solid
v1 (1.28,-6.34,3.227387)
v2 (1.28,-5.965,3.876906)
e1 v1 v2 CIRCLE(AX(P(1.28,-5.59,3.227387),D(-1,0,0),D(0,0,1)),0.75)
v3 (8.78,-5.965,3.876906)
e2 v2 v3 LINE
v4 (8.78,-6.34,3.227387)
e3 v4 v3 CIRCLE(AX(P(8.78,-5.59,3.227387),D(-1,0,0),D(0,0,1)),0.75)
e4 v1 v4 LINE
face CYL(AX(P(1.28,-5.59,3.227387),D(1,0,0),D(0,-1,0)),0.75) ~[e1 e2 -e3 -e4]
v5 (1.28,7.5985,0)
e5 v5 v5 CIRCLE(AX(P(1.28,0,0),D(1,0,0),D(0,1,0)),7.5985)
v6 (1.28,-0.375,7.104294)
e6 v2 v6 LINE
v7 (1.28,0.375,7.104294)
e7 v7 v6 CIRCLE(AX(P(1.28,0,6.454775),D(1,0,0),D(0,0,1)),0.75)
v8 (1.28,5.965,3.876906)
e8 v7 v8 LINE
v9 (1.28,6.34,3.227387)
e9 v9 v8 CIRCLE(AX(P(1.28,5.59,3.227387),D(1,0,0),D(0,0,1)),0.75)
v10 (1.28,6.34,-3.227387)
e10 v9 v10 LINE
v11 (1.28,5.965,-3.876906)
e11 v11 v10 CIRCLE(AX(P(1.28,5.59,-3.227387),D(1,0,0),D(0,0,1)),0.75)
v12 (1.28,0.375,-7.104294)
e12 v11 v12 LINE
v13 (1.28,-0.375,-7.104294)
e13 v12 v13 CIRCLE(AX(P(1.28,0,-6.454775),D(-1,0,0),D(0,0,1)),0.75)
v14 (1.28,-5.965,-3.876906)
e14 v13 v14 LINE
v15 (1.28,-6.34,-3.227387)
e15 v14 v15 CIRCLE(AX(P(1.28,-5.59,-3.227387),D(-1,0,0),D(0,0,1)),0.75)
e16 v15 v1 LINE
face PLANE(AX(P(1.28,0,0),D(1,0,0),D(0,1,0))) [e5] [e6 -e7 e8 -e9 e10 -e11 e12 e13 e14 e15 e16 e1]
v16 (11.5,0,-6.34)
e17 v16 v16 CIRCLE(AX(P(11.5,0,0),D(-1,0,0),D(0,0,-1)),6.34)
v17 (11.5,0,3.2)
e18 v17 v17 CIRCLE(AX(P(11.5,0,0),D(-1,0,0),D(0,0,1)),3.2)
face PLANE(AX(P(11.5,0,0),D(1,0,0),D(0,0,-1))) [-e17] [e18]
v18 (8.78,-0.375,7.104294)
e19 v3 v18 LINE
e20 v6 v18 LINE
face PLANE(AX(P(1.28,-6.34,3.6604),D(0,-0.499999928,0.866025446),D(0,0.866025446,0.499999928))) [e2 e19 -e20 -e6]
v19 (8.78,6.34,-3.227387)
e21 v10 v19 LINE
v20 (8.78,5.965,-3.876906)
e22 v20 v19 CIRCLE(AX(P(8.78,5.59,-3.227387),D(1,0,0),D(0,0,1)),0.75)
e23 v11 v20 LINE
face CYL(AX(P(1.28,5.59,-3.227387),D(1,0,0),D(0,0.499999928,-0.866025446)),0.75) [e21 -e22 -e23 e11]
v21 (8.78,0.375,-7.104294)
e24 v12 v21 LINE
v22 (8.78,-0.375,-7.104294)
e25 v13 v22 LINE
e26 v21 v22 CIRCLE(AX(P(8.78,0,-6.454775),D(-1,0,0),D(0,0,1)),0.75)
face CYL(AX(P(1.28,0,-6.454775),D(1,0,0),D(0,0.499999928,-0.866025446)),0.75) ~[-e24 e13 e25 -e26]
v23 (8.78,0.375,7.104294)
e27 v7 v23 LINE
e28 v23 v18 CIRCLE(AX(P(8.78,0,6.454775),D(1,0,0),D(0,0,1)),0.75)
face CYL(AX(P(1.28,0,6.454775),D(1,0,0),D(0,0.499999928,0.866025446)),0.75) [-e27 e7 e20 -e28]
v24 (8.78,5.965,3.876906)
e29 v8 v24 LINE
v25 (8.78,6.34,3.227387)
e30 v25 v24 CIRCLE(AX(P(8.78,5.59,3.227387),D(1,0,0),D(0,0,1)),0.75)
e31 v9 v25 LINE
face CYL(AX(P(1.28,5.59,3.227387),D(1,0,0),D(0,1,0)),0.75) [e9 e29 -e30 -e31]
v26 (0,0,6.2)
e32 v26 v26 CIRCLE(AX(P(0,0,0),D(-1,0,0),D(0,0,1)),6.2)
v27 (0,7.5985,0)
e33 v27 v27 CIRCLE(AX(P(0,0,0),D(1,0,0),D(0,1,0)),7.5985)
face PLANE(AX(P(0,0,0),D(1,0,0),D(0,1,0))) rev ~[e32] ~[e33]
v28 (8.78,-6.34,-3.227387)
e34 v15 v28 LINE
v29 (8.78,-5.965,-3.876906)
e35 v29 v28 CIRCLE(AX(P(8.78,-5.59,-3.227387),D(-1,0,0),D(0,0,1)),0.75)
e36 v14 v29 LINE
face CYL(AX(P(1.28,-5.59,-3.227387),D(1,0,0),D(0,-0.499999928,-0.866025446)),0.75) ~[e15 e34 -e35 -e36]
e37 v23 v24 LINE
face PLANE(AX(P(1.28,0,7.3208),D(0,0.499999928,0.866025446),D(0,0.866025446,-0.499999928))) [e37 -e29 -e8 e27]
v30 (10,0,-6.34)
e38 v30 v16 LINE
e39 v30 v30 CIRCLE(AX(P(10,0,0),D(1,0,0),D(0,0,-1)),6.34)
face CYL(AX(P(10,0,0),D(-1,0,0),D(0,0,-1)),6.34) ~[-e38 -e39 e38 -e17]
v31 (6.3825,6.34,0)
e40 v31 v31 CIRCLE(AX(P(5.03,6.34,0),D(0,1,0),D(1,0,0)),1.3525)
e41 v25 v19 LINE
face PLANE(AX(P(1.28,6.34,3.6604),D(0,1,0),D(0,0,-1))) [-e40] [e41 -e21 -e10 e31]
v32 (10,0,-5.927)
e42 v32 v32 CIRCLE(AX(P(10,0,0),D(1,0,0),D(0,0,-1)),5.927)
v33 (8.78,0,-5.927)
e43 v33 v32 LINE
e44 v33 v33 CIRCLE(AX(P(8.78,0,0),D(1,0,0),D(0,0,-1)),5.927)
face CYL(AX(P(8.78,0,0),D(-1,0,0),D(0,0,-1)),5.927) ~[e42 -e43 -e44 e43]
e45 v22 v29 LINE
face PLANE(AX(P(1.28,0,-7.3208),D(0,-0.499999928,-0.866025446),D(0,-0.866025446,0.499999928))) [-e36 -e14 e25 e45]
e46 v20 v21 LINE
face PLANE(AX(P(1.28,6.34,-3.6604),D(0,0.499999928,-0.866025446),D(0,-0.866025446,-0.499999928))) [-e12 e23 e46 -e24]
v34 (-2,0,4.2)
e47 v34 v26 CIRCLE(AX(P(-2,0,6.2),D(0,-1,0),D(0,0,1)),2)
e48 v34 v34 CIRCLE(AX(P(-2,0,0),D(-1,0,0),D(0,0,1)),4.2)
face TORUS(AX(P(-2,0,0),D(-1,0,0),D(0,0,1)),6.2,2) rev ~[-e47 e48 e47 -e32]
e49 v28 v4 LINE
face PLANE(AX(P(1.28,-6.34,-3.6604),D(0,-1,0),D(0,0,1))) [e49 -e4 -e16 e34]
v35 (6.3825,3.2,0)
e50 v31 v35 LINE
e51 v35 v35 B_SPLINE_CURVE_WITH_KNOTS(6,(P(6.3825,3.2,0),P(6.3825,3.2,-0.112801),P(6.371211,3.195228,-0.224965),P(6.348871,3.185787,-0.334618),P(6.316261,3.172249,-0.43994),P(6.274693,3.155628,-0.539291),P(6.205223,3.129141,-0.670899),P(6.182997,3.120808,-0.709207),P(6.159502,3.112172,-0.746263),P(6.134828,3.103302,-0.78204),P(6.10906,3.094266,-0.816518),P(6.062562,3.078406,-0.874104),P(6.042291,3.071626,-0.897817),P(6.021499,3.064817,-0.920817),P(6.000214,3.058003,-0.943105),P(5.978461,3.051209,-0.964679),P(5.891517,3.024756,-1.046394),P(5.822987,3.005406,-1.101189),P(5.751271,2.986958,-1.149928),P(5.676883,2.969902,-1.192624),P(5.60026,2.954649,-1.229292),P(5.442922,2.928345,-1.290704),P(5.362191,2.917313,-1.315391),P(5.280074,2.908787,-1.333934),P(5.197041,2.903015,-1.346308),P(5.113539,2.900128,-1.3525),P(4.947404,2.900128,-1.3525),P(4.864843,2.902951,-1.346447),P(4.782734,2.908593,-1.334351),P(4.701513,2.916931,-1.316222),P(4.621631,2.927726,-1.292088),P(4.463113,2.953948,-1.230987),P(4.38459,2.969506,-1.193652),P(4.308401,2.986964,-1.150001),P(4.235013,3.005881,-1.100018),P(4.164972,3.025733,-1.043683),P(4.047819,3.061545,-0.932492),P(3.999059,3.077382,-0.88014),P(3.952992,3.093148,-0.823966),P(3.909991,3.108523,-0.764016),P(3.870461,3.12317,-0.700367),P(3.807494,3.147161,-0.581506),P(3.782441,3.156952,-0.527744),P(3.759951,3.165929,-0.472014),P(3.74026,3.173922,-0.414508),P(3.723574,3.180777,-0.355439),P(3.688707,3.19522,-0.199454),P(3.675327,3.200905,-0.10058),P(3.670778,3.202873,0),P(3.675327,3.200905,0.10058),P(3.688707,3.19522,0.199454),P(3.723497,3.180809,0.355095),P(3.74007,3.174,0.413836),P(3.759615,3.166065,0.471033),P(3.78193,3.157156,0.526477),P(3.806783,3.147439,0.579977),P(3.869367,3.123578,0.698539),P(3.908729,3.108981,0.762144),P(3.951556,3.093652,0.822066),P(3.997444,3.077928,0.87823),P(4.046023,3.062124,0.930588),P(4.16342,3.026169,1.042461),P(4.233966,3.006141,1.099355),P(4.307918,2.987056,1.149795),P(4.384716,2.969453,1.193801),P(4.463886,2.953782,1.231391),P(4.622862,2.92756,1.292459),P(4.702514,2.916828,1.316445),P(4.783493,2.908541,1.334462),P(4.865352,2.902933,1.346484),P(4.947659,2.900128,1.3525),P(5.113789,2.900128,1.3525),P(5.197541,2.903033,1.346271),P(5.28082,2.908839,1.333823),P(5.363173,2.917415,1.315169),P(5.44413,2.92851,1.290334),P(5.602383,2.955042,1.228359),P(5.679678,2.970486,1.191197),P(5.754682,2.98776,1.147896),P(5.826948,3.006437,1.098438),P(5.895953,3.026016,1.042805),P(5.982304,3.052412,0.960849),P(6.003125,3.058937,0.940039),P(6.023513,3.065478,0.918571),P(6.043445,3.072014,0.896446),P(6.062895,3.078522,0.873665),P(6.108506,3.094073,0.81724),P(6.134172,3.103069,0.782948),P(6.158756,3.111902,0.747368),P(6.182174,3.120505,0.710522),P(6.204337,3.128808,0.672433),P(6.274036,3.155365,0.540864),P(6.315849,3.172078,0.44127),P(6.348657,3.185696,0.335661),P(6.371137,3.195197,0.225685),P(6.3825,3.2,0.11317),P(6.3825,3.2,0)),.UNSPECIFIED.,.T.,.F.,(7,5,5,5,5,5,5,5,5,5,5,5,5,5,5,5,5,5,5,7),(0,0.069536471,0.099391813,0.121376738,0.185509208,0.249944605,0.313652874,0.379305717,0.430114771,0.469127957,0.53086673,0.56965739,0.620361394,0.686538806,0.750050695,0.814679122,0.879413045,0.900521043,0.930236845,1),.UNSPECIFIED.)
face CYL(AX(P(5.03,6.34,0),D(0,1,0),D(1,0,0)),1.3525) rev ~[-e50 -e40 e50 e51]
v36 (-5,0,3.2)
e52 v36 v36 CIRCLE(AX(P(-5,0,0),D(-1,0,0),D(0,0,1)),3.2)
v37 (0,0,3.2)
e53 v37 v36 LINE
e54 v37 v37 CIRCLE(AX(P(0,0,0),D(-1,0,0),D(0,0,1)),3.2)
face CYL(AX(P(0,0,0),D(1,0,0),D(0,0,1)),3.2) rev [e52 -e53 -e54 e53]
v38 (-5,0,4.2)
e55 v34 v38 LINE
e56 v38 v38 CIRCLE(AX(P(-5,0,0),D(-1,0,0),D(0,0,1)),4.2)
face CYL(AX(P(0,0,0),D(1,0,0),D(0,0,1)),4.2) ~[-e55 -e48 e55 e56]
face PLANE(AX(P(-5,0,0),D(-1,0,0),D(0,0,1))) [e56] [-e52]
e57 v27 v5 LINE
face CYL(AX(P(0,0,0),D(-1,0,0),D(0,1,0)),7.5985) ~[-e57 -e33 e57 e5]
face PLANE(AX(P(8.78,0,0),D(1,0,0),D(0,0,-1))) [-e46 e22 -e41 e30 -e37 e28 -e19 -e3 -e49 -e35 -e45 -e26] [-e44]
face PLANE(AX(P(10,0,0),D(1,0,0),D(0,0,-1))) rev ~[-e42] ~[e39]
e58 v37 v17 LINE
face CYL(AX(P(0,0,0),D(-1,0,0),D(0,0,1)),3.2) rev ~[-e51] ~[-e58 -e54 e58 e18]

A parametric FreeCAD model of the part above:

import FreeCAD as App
import Part
import Sketcher
Q = App.Units.Quantity


def edges_at(feature, points):
    """Names of the edges that pass closest to the given points."""
    edges = feature.Shape.Edges
    near = lambda p: min(range(len(edges)), key=lambda i: edges[i].distToShape(Part.Vertex(*p))[0])
    return sorted({f"Edge{near(p) + 1}" for p in points})


def add_polygon(sketch, points):
    """Adds a closed chain of lines whose ends are joined by coincident constraints."""
    first, n = sketch.GeometryCount, len(points)
    for a, b in zip(points, points[1:] + points[:1]):
        sketch.addGeometry(Part.LineSegment(App.Vector(*a, 0), App.Vector(*b, 0)), False)
    for i in range(n):
        sketch.addConstraint(Sketcher.Constraint("Coincident", first + i, 2, first + (i + 1) % n, 1))

doc = App.newDocument("Part")
params = doc.addObject("Spreadsheet::Sheet", "Params")
for row, (alias, value) in enumerate([
    ("pad1_length", "1.28 mm"),
    ("pad2_length", "7.5 mm"),
    ("pad3_length", "1.22 mm"),
    ("sketch4_diameter", "12.68 mm"),
    ("pad4_length", "1.5 mm"),
    ("fillet_radius", "0.75 mm"),
    ("fillet2_radius", "0.75 mm"),
    ("pocket1_length", "6.5 mm"),
    ("sketch6_diameter", "6.4 mm"),
    ("pocket2_length", "11.75 mm"),
    ("sketch7_diameter", "8.4 mm"),
    ("sketch7_diameter2", "6.4 mm"),
    ("pad5_length", "5 mm"),
    ("fillet3_radius", "2 mm"),
], start=1):
    params.set(f"A{row}", alias)
    params.set(f"B{row}", "=" + value)
    params.setAlias(f"B{row}", alias)

body = doc.addObject("PartDesign::Body", "Body")

sketch1 = body.newObject("Sketcher::SketchObject", "Sketch")
sketch1.AttachmentSupport = (doc.getObject("YZ_Plane"), [""])
sketch1.MapMode = "FlatFace"
sketch1.addGeometry(Part.Circle(App.Vector(0, 0, 0), App.Vector(0, 0, 1), 8), False)
sketch1.addConstraint([
    Sketcher.Constraint("Coincident", 0, 3, -1, 1),
    Sketcher.Constraint("Diameter", 0, 15.197),
])
pad1 = body.newObject("PartDesign::Pad", "Pad")
pad1.Profile = sketch1
pad1.setExpression("Length", "Params.pad1_length")

sketch2 = body.newObject("Sketcher::SketchObject", "Sketch001")
sketch2.AttachmentSupport = (doc.getObject("YZ_Plane"), [""])
sketch2.MapMode = "FlatFace"
sketch2.AttachmentOffset = App.Placement(App.Vector(0, 0, 1.28), App.Rotation())
add_polygon(sketch2, [(0, -7), (6, -4), (6, 4), (0, 7), (-6, 4), (-6, -4)])
sketch2.addConstraint([
    Sketcher.Constraint("Vertical", 1),
    Sketcher.Constraint("Vertical", 4),
    Sketcher.Constraint("Symmetric", 0, 2, 3, 2, -1, 1),
    Sketcher.Constraint("Symmetric", 2, 2, 5, 2, -1, 1),
    Sketcher.Constraint("PointOnObject", 2, 2, -2),
    Sketcher.Constraint("Parallel", 2, 5),
    Sketcher.Constraint("Horizontal", 1, 2, 3, 2),
    Sketcher.Constraint("Angle", 0, Q("30 deg")),
    Sketcher.Constraint("DistanceX", -1, 1, 0, 2, 6.34),
    Sketcher.Constraint("DistanceY", 1, 1, 1, 2, 7.3208),
])
pad2 = body.newObject("PartDesign::Pad", "Pad001")
pad2.Profile = sketch2
pad2.setExpression("Length", "Params.pad2_length")

sketch3 = body.newObject("Sketcher::SketchObject", "Sketch002")
sketch3.AttachmentSupport = (doc.getObject("YZ_Plane"), [""])
sketch3.MapMode = "FlatFace"
sketch3.AttachmentOffset = App.Placement(App.Vector(0, 0, 8.78), App.Rotation())
sketch3.addGeometry(Part.Circle(App.Vector(0, 0, 0), App.Vector(0, 0, 1), 6), False)
sketch3.addConstraint([
    Sketcher.Constraint("Coincident", 0, 3, -1, 1),
    Sketcher.Constraint("Diameter", 0, 11.854),
])
pad3 = body.newObject("PartDesign::Pad", "Pad002")
pad3.Profile = sketch3
pad3.setExpression("Length", "Params.pad3_length")

sketch4 = body.newObject("Sketcher::SketchObject", "Sketch003")
sketch4.AttachmentSupport = (doc.getObject("YZ_Plane"), [""])
sketch4.MapMode = "FlatFace"
sketch4.AttachmentOffset = App.Placement(App.Vector(0, 0, 10), App.Rotation())
sketch4.addGeometry(Part.Circle(App.Vector(0, 0, 0), App.Vector(0, 0, 1), 6), False)
sketch4.addConstraint([
    Sketcher.Constraint("Coincident", 0, 3, -1, 1),
    Sketcher.Constraint("Diameter", 0, 12.68),
])
sketch4.setExpression("Constraints[1]", "Params.sketch4_diameter")
pad4 = body.newObject("PartDesign::Pad", "Pad003")
pad4.Profile = sketch4
pad4.setExpression("Length", "Params.pad4_length")
doc.recompute()

fillet = body.newObject("PartDesign::Fillet", "Fillet")
fillet.Base = (pad4, edges_at(pad4, [
    (5.03, 0, -7.321),
    (5.03, -6.34, -3.66),
    (5.03, 0, 7.321),
    (5.03, 6.34, -3.66),
    (5.03, 6.34, 3.66),
]))
fillet.setExpression("Radius", "Params.fillet_radius")
doc.recompute()

fillet2 = body.newObject("PartDesign::Fillet", "Fillet001")
fillet2.Base = (fillet, edges_at(fillet, [(5.03, -6.34, 3.66)]))
fillet2.setExpression("Radius", "Params.fillet2_radius")

sketch5 = body.newObject("Sketcher::SketchObject", "Sketch004")
sketch5.AttachmentSupport = (doc.getObject("XZ_Plane"), [""])
sketch5.MapMode = "FlatFace"
sketch5.AttachmentOffset = App.Placement(App.Vector(0, 0, -6.34), App.Rotation())
sketch5.addGeometry(Part.Circle(App.Vector(5, 0, 0), App.Vector(0, 0, 1), 1.4), False)
sketch5.addConstraint([
    Sketcher.Constraint("PointOnObject", 0, 3, -1),
    Sketcher.Constraint("Diameter", 0, 2.705),
    Sketcher.Constraint("DistanceX", -1, 1, 0, 3, 5.03),
])
pocket1 = body.newObject("PartDesign::Pocket", "Pocket")
pocket1.Profile = sketch5
pocket1.setExpression("Length", "Params.pocket1_length")
pocket1.Reversed = True

sketch6 = body.newObject("Sketcher::SketchObject", "Sketch005")
sketch6.AttachmentSupport = (doc.getObject("YZ_Plane"), [""])
sketch6.MapMode = "FlatFace"
sketch6.addGeometry(Part.Circle(App.Vector(0, 0, 0), App.Vector(0, 0, 1), 3.2), False)
sketch6.addConstraint([
    Sketcher.Constraint("Coincident", 0, 3, -1, 1),
    Sketcher.Constraint("Diameter", 0, 6.4),
])
sketch6.setExpression("Constraints[1]", "Params.sketch6_diameter")
pocket2 = body.newObject("PartDesign::Pocket", "Pocket001")
pocket2.Profile = sketch6
pocket2.setExpression("Length", "Params.pocket2_length")
pocket2.Reversed = True

sketch7 = body.newObject("Sketcher::SketchObject", "Sketch006")
sketch7.AttachmentSupport = (doc.getObject("YZ_Plane"), [""])
sketch7.MapMode = "FlatFace"
sketch7.addGeometry([
    Part.Circle(App.Vector(0, 0, 0), App.Vector(0, 0, 1), 4.2),
    Part.Circle(App.Vector(0, 0, 0), App.Vector(0, 0, 1), 3.2),
], False)
sketch7.addConstraint([
    Sketcher.Constraint("Coincident", 0, 3, -1, 1),
    Sketcher.Constraint("Coincident", 1, 3, -1, 1),
    Sketcher.Constraint("Diameter", 0, 8.4),
    Sketcher.Constraint("Diameter", 1, 6.4),
])
sketch7.setExpression("Constraints[2]", "Params.sketch7_diameter")
sketch7.setExpression("Constraints[3]", "Params.sketch7_diameter2")
pad5 = body.newObject("PartDesign::Pad", "Pad004")
pad5.Profile = sketch7
pad5.setExpression("Length", "Params.pad5_length")
pad5.Reversed = True
doc.recompute()

fillet3 = body.newObject("PartDesign::Fillet", "Fillet002")
fillet3.Base = (pad5, edges_at(pad5, [(0, 0, -4.2)]))
fillet3.setExpression("Radius", "Params.fillet3_radius")

doc.recompute()
